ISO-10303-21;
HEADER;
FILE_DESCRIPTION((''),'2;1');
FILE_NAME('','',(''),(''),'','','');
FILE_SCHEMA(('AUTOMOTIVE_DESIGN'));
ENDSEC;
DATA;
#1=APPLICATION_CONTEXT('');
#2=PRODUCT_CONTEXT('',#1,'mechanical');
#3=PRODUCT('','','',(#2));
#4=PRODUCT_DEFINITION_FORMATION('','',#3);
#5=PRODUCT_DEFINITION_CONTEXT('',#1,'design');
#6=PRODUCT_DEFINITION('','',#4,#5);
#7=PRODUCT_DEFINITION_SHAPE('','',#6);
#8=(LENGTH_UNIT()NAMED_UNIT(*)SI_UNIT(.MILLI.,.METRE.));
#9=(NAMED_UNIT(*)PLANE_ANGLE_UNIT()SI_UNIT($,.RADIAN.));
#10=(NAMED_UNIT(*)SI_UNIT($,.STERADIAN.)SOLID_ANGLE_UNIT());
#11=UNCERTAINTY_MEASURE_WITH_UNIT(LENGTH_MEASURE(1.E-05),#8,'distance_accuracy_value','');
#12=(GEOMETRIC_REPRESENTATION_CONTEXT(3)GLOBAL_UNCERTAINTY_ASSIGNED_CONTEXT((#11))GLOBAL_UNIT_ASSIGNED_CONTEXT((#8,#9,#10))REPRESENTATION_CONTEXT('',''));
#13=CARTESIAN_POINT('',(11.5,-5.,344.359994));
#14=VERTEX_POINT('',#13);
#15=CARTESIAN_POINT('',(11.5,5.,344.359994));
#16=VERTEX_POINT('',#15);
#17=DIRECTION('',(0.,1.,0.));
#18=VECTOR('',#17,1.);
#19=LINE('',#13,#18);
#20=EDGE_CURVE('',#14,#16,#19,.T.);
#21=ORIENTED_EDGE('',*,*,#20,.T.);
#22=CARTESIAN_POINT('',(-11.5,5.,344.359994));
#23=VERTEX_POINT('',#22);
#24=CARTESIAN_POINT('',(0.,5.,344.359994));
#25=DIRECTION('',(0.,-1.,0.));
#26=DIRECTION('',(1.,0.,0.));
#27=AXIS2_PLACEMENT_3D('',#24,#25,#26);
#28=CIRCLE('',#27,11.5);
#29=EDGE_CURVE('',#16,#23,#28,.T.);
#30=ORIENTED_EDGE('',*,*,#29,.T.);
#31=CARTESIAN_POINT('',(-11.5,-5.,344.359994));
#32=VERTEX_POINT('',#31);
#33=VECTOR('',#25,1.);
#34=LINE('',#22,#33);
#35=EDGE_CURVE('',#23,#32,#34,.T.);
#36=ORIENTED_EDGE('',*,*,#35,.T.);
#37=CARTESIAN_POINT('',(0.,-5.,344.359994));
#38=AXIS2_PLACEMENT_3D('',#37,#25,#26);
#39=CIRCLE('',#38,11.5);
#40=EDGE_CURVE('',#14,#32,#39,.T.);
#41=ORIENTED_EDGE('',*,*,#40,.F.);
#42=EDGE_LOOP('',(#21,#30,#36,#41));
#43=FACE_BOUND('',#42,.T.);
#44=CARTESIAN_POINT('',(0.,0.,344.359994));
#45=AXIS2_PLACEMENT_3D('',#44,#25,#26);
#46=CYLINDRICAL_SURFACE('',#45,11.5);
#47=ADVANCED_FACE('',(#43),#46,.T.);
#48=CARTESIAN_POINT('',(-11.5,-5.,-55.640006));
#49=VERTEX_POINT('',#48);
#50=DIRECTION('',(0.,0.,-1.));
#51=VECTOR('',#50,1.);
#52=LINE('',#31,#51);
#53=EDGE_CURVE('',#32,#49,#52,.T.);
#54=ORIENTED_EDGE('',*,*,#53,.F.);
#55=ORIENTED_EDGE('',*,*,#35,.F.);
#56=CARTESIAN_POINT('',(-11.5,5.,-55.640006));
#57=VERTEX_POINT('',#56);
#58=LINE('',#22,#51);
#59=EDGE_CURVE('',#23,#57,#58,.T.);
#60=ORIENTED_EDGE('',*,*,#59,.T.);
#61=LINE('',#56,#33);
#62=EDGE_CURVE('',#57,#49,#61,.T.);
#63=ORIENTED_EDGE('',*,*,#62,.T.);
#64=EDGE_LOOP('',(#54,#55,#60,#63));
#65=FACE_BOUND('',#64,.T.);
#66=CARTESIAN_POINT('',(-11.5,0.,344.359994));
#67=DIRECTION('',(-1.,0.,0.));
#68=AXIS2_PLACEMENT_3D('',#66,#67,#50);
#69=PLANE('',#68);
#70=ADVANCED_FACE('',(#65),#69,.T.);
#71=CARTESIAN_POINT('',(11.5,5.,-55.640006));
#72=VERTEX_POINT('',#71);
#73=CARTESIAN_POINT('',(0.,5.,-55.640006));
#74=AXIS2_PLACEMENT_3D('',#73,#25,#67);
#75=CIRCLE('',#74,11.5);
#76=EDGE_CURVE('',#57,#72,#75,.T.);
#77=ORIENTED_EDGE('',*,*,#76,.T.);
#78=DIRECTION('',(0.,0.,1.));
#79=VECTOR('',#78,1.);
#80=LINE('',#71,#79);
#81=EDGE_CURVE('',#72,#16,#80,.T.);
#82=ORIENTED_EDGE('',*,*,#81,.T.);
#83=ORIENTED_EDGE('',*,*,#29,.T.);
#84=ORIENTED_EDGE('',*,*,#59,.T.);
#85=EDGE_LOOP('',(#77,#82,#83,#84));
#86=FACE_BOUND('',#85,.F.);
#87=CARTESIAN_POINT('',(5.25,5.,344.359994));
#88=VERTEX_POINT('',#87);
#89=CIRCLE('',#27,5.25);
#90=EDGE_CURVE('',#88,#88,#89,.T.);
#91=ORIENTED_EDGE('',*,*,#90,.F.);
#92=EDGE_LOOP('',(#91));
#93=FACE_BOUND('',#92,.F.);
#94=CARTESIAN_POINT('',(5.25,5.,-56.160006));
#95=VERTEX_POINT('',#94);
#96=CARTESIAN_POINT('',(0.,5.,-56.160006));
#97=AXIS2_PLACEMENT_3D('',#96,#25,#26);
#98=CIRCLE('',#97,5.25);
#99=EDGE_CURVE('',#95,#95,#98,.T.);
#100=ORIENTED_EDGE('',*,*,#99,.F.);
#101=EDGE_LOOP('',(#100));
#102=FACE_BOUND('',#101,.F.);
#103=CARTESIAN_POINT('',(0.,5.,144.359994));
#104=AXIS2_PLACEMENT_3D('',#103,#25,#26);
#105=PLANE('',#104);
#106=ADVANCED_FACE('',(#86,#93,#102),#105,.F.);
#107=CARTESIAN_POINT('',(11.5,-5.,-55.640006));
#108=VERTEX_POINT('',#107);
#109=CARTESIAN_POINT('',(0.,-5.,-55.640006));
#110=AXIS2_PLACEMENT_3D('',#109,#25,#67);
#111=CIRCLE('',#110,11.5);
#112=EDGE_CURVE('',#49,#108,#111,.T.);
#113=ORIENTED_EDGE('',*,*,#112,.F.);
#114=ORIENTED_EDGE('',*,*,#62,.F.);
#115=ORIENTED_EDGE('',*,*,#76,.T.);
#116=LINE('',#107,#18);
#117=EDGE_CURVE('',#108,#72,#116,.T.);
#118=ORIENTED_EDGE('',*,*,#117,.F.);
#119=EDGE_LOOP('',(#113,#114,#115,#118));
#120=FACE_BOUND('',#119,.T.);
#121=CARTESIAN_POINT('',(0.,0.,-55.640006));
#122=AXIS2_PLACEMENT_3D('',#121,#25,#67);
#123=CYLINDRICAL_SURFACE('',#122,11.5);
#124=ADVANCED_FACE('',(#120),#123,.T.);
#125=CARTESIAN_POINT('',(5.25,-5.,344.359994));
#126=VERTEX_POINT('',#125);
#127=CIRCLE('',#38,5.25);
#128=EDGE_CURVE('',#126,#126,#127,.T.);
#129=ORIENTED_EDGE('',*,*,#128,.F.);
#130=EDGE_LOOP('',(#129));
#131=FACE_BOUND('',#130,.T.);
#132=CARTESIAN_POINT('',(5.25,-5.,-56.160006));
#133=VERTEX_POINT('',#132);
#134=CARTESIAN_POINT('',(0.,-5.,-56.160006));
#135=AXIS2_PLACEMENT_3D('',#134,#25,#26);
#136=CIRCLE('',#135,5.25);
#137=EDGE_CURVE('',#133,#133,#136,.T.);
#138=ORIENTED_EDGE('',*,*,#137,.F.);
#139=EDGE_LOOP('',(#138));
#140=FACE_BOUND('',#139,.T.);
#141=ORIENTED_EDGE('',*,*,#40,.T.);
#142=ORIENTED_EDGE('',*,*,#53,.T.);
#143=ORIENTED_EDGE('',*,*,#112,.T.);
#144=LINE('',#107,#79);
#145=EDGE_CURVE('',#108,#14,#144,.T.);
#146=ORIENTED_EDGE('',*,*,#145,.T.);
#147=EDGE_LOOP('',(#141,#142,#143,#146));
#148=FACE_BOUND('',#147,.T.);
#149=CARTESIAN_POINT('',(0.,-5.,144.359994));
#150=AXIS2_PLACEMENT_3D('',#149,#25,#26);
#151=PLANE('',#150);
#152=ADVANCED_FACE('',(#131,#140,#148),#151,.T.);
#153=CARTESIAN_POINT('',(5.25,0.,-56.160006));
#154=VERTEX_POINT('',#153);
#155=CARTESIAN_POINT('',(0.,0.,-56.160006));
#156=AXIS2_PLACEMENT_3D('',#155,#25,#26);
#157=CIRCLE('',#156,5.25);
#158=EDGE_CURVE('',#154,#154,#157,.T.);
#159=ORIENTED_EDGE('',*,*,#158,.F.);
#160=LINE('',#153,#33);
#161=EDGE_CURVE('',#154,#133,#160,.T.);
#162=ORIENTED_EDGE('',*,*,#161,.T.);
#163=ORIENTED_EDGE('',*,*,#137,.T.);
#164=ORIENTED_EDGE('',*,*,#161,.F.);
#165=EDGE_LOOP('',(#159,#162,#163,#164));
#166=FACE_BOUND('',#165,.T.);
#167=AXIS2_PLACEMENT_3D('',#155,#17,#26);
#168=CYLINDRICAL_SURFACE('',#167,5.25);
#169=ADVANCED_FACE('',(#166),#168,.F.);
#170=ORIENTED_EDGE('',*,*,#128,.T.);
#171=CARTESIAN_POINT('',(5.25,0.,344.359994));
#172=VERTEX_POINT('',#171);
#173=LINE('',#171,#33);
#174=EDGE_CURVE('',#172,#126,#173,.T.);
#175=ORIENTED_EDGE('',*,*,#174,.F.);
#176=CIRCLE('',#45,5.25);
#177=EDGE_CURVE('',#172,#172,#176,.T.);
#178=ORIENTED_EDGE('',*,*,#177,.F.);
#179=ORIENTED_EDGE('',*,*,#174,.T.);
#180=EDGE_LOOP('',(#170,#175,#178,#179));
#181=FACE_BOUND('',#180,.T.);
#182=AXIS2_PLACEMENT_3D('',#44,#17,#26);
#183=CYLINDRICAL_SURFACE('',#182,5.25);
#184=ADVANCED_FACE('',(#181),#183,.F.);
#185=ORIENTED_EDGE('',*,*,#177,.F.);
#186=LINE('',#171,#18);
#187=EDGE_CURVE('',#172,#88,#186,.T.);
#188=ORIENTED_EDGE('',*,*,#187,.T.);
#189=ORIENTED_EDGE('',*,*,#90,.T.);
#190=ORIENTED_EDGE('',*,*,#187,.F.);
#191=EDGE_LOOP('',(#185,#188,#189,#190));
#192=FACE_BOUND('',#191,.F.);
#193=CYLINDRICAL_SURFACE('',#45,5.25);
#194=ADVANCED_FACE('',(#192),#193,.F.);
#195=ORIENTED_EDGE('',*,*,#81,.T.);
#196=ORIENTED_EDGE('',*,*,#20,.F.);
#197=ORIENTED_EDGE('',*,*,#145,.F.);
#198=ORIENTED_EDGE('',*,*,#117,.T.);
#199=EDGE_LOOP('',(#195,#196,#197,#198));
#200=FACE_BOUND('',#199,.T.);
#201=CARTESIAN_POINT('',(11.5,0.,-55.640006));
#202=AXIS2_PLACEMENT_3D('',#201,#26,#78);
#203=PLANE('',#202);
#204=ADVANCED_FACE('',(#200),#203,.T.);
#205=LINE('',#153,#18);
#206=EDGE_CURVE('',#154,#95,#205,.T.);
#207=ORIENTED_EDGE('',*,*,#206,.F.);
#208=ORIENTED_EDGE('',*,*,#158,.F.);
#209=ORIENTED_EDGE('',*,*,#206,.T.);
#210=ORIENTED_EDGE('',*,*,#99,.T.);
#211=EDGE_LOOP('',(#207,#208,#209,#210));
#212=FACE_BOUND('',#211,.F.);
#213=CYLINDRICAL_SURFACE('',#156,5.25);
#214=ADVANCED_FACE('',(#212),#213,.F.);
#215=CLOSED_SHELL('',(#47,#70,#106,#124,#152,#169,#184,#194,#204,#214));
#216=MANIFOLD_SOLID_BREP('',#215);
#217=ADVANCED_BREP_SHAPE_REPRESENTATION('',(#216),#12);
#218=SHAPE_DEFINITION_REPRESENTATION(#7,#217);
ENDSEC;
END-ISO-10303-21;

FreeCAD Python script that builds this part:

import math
import FreeCAD as App
import Part
import Sketcher
Q = App.Units.Quantity

doc = App.newDocument("Part")
params = doc.addObject("Spreadsheet::Sheet", "Params")
for row, (alias, value) in enumerate([
    ("sketch1_diameter", "10.5 mm"),
    ("sketch1_radius", "11.5 mm"),
    ("sketch1_height", "400 mm"),
    ("pad1_length", "5 mm"),
    ("pad1_length2", "5 mm"),
], start=1):
    params.set(f"A{row}", alias)
    params.set(f"B{row}", "=" + value)
    params.setAlias(f"B{row}", alias)

body = doc.addObject("PartDesign::Body", "Body")

# Sketch on XZ plane
sketch1 = body.newObject("Sketcher::SketchObject", "Sketch")
sketch1.AttachmentSupport = (doc.getObject("XZ_Plane"), [""])
sketch1.MapMode = "FlatFace"
sketch1.addGeometry([
    Part.ArcOfCircle(Part.Circle(App.Vector(0, 344, 0), App.Vector(0, 0, 1), 12), math.radians(0), math.radians(180)),  # 0
    Part.LineSegment(App.Vector(-12, 344, 0), App.Vector(-12, -56, 0)),  # 1
    Part.ArcOfCircle(Part.Circle(App.Vector(0, -56, 0), App.Vector(0, 0, 1), 12), math.radians(180), math.radians(360)),  # 2
    Part.LineSegment(App.Vector(12, -56, 0), App.Vector(12, 344, 0)),  # 3
    Part.Circle(App.Vector(0, -56, 0), App.Vector(0, 0, 1), 5),  # 4
    Part.Circle(App.Vector(0, 344, 0), App.Vector(0, 0, 1), 5),  # 5
], False)
sketch1.addConstraint([
    Sketcher.Constraint("Tangent", 0, 2, 1, 1),
    Sketcher.Constraint("Tangent", 1, 2, 2, 1),
    Sketcher.Constraint("Tangent", 2, 2, 3, 1),
    Sketcher.Constraint("Tangent", 3, 2, 0, 1),
    Sketcher.Constraint("Vertical", 1),
    Sketcher.Constraint("Vertical", 3),
    Sketcher.Constraint("Coincident", 5, 3, 0, 3),
    Sketcher.Constraint("Equal", 4, 5),
    Sketcher.Constraint("PointOnObject", 0, 3, -2),
    Sketcher.Constraint("PointOnObject", 4, 3, -2),
    Sketcher.Constraint("Diameter", 4, Q("10.5 mm")),
    Sketcher.Constraint("Radius", 0, Q("11.5 mm")),
    Sketcher.Constraint("DistanceY", 1, 2, 1, 1, Q("400 mm")),
    Sketcher.Constraint("DistanceY", 4, 3, 2, 3, Q("0.52 mm")),
    Sketcher.Constraint("DistanceY", -1, 1, 0, 3, Q("344.359994 mm")),
])
sketch1.setExpression("Constraints[10]", "Params.sketch1_diameter")
sketch1.setExpression("Constraints[11]", "Params.sketch1_radius")
sketch1.setExpression("Constraints[12]", "Params.sketch1_height")
pad1 = body.newObject("PartDesign::Pad", "Pad")
pad1.Profile = sketch1
pad1.Type = "TwoLengths"
pad1.setExpression("Length", "Params.pad1_length")
pad1.setExpression("Length2", "Params.pad1_length2")

doc.recompute()
